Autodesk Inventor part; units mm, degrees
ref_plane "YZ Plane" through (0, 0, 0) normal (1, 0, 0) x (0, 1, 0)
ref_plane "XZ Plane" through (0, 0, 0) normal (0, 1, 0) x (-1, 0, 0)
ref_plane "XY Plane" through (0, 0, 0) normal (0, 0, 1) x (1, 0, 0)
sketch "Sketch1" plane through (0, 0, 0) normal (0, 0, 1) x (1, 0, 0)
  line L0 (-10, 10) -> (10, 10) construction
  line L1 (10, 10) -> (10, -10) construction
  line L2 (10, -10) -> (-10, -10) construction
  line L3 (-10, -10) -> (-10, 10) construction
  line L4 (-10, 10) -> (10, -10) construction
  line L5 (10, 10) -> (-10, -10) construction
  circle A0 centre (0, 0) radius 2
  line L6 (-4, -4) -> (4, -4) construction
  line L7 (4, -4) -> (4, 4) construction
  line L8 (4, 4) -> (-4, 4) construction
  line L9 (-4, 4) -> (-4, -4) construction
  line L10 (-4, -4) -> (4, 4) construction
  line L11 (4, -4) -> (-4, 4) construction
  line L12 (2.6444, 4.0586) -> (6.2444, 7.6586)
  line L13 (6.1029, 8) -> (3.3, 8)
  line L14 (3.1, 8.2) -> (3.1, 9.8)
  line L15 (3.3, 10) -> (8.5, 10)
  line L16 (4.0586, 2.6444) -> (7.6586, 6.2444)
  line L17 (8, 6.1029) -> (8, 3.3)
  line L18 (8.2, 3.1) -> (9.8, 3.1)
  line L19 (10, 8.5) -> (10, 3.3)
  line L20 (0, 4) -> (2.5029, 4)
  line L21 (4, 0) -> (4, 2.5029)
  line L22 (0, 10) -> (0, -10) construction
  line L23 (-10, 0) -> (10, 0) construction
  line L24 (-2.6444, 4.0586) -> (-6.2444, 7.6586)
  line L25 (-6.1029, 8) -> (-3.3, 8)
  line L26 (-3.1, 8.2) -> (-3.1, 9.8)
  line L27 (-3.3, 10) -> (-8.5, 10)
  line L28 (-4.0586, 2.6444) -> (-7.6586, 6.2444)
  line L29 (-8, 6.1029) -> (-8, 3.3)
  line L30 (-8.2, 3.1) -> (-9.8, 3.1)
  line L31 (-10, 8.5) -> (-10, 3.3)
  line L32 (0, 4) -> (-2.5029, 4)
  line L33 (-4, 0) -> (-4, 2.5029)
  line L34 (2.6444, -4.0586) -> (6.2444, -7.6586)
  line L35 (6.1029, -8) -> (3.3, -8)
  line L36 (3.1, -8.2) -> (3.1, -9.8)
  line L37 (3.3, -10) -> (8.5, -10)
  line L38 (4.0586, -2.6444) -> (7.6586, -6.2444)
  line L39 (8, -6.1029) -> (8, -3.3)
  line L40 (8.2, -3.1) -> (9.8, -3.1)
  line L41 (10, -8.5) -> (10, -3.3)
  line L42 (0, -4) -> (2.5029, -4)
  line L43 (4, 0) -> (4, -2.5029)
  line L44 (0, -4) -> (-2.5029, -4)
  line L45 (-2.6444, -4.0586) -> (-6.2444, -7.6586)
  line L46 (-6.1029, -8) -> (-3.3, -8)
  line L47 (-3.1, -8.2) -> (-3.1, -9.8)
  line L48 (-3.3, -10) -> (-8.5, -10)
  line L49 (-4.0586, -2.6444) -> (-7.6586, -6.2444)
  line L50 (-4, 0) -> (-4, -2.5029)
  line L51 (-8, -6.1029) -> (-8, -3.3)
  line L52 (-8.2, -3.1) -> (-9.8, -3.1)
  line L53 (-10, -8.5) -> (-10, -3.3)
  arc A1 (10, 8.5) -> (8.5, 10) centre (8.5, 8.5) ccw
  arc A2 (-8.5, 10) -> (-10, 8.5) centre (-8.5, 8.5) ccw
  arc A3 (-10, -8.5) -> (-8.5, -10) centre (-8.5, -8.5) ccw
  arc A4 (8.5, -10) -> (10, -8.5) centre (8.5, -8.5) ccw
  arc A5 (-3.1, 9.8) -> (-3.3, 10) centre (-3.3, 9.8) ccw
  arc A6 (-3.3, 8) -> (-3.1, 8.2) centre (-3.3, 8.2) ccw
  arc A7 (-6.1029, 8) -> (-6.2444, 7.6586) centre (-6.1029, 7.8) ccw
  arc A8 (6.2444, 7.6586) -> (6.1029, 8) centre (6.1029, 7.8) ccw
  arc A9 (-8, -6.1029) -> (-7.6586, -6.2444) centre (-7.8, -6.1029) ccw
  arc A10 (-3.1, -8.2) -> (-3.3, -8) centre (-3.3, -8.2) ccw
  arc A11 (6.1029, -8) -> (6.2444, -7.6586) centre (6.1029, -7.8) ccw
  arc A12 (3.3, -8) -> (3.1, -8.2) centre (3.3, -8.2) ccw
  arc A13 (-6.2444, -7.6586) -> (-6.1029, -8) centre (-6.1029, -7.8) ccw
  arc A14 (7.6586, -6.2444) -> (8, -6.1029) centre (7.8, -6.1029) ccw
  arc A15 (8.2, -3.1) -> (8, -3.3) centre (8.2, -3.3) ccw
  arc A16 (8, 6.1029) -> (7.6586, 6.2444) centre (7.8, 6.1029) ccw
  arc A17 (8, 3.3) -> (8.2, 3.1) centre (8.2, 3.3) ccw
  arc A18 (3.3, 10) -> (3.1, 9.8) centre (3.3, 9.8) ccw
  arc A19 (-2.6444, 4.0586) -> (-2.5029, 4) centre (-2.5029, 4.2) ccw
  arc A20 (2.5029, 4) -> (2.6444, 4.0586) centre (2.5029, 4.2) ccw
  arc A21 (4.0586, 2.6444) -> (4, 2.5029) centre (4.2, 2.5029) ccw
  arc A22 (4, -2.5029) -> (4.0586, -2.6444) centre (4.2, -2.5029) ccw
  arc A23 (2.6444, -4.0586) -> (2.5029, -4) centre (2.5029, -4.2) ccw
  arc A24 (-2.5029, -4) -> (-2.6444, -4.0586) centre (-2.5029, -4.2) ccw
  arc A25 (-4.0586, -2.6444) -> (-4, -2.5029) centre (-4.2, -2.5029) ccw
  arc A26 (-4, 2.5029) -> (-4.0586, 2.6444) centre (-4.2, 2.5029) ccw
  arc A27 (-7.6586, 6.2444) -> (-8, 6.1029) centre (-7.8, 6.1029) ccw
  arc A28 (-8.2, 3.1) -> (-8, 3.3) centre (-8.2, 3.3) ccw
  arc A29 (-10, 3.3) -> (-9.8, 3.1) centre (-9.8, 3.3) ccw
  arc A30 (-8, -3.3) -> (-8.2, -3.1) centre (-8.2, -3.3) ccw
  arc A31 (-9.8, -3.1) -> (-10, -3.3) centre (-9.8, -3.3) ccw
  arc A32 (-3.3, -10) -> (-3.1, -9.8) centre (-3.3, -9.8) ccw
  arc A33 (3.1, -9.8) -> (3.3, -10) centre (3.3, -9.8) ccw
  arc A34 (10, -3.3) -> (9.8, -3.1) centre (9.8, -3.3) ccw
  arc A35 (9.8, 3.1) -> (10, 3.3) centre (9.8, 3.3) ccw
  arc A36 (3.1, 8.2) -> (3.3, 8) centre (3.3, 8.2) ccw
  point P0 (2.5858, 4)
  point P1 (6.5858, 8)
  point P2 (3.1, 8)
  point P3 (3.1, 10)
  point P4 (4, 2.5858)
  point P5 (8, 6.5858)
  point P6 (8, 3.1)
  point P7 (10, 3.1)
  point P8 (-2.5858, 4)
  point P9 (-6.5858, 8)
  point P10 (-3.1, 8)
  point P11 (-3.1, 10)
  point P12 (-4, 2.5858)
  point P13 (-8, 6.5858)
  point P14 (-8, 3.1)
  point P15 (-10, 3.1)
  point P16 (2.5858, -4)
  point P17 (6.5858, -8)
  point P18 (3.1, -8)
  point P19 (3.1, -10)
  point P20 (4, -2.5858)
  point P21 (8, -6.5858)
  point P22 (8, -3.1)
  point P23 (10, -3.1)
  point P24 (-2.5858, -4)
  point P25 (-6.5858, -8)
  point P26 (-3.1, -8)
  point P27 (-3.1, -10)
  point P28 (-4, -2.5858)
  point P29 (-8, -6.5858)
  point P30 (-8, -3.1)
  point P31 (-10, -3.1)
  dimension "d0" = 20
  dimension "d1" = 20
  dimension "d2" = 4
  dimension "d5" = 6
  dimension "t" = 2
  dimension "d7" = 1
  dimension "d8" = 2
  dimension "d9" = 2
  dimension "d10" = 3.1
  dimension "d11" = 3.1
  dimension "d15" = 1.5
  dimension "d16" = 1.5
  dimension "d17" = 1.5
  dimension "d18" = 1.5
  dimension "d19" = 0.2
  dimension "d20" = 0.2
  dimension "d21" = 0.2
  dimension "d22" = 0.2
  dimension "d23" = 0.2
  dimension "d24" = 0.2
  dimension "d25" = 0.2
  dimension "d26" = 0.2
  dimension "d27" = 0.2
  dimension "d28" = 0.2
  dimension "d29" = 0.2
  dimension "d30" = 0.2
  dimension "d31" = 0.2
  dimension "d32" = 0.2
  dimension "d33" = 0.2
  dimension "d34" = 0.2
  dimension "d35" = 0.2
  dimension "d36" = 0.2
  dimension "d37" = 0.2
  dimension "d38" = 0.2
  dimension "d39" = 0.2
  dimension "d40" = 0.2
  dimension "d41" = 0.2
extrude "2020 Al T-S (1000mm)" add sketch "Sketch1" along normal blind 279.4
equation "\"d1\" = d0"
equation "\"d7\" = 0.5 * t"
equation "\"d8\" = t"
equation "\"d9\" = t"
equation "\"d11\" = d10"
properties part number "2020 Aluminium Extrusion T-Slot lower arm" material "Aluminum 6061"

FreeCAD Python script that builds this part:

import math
import FreeCAD as App
import Part
import Sketcher
from FreeCAD import Vector

doc = App.newDocument("Part")
body = doc.addObject("PartDesign::Body", "Body")

# Sketch on XY plane
sketch1 = doc.addObject("Sketcher::SketchObject", "Sketch")
body.addObject(sketch1)
sketch1.AttachmentSupport = (doc.XY_Plane, [""])
sketch1.MapMode = "FlatFace"
sketch1.addGeometry([
    Part.LineSegment(Vector(6.2444, 7.6586, 0), Vector(2.6444, 4.0586, 0)),  # 0
    Part.ArcOfCircle(Part.Circle(Vector(2.5029, 4.2, 0), Vector(0, 0, 1), 0.2), math.radians(-90), math.radians(-44.979747)),  # 1
    Part.LineSegment(Vector(2.5029, 4, 0), Vector(-2.5029, 4, 0)),  # 2
    Part.ArcOfCircle(Part.Circle(Vector(-2.5029, 4.2, 0), Vector(0, 0, 1), 0.200041), math.radians(-135.020253), math.radians(-90)),  # 3
    Part.LineSegment(Vector(-2.6444, 4.0586, 0), Vector(-6.2444, 7.6586, 0)),  # 4
    Part.ArcOfCircle(Part.Circle(Vector(-6.1029, 7.8, 0), Vector(0, 0, 1), 0.2), math.radians(90), math.radians(224.979747)),  # 5
    Part.LineSegment(Vector(-6.1029, 8, 0), Vector(-3.3, 8, 0)),  # 6
    Part.ArcOfCircle(Part.Circle(Vector(-3.3, 8.2, 0), Vector(0, 0, 1), 0.2), math.radians(-90), math.radians(0)),  # 7
    Part.LineSegment(Vector(-3.1, 8.2, 0), Vector(-3.1, 9.8, 0)),  # 8
    Part.ArcOfCircle(Part.Circle(Vector(-3.3, 9.8, 0), Vector(0, 0, 1), 0.2), math.radians(0), math.radians(90)),  # 9
    Part.LineSegment(Vector(-3.3, 10, 0), Vector(-8.5, 10, 0)),  # 10
    Part.ArcOfCircle(Part.Circle(Vector(-8.5, 8.5, 0), Vector(0, 0, 1), 1.5), math.radians(90), math.radians(180)),  # 11
    Part.LineSegment(Vector(-10, 8.5, 0), Vector(-10, 3.3, 0)),  # 12
    Part.ArcOfCircle(Part.Circle(Vector(-9.8, 3.3, 0), Vector(0, 0, 1), 0.2), math.radians(180), math.radians(270)),  # 13
    Part.LineSegment(Vector(-9.8, 3.1, 0), Vector(-8.2, 3.1, 0)),  # 14
    Part.ArcOfCircle(Part.Circle(Vector(-8.2, 3.3, 0), Vector(0, 0, 1), 0.2), math.radians(-90), math.radians(0)),  # 15
    Part.LineSegment(Vector(-8, 3.3, 0), Vector(-8, 6.1029, 0)),  # 16
    Part.ArcOfCircle(Part.Circle(Vector(-7.8, 6.1029, 0), Vector(0, 0, 1), 0.200041), math.radians(45.020253), math.radians(180)),  # 17
    Part.LineSegment(Vector(-7.6586, 6.2444, 0), Vector(-4.0586, 2.6444, 0)),  # 18
    Part.ArcOfCircle(Part.Circle(Vector(-4.2, 2.5029, 0), Vector(0, 0, 1), 0.2), math.radians(0), math.radians(45.020253)),  # 19
    Part.LineSegment(Vector(-4, 2.5029, 0), Vector(-4, -2.5029, 0)),  # 20
    Part.ArcOfCircle(Part.Circle(Vector(-4.2, -2.5029, 0), Vector(0, 0, 1), 0.200041), math.radians(-45.020253), math.radians(0)),  # 21
    Part.LineSegment(Vector(-4.0586, -2.6444, 0), Vector(-7.6586, -6.2444, 0)),  # 22
    Part.ArcOfCircle(Part.Circle(Vector(-7.8, -6.1029, 0), Vector(0, 0, 1), 0.2), math.radians(180), math.radians(314.979747)),  # 23
    Part.LineSegment(Vector(-8, -6.1029, 0), Vector(-8, -3.3, 0)),  # 24
    Part.ArcOfCircle(Part.Circle(Vector(-8.2, -3.3, 0), Vector(0, 0, 1), 0.2), math.radians(0), math.radians(90)),  # 25
    Part.LineSegment(Vector(-8.2, -3.1, 0), Vector(-9.8, -3.1, 0)),  # 26
    Part.ArcOfCircle(Part.Circle(Vector(-9.8, -3.3, 0), Vector(0, 0, 1), 0.2), math.radians(90), math.radians(180)),  # 27
    Part.LineSegment(Vector(-10, -3.3, 0), Vector(-10, -8.5, 0)),  # 28
    Part.ArcOfCircle(Part.Circle(Vector(-8.5, -8.5, 0), Vector(0, 0, 1), 1.5), math.radians(180), math.radians(270)),  # 29
    Part.LineSegment(Vector(-8.5, -10, 0), Vector(-3.3, -10, 0)),  # 30
    Part.ArcOfCircle(Part.Circle(Vector(-3.3, -9.8, 0), Vector(0, 0, 1), 0.2), math.radians(-90), math.radians(0)),  # 31
    Part.LineSegment(Vector(-3.1, -9.8, 0), Vector(-3.1, -8.2, 0)),  # 32
    Part.ArcOfCircle(Part.Circle(Vector(-3.3, -8.2, 0), Vector(0, 0, 1), 0.2), math.radians(0), math.radians(90)),  # 33
    Part.LineSegment(Vector(-3.3, -8, 0), Vector(-6.1029, -8, 0)),  # 34
    Part.ArcOfCircle(Part.Circle(Vector(-6.1029, -7.8, 0), Vector(0, 0, 1), 0.200041), math.radians(135.020253), math.radians(270)),  # 35
    Part.LineSegment(Vector(-6.2444, -7.6586, 0), Vector(-2.6444, -4.0586, 0)),  # 36
    Part.ArcOfCircle(Part.Circle(Vector(-2.5029, -4.2, 0), Vector(0, 0, 1), 0.2), math.radians(90), math.radians(135.020253)),  # 37
    Part.LineSegment(Vector(-2.5029, -4, 0), Vector(2.5029, -4, 0)),  # 38
    Part.ArcOfCircle(Part.Circle(Vector(2.5029, -4.2, 0), Vector(0, 0, 1), 0.200041), math.radians(44.979747), math.radians(90)),  # 39
    Part.LineSegment(Vector(2.6444, -4.0586, 0), Vector(6.2444, -7.6586, 0)),  # 40
    Part.ArcOfCircle(Part.Circle(Vector(6.1029, -7.8, 0), Vector(0, 0, 1), 0.2), math.radians(-90), math.radians(44.979747)),  # 41
    Part.LineSegment(Vector(6.1029, -8, 0), Vector(3.3, -8, 0)),  # 42
    Part.ArcOfCircle(Part.Circle(Vector(3.3, -8.2, 0), Vector(0, 0, 1), 0.2), math.radians(90), math.radians(180)),  # 43
    Part.LineSegment(Vector(3.1, -8.2, 0), Vector(3.1, -9.8, 0)),  # 44
    Part.ArcOfCircle(Part.Circle(Vector(3.3, -9.8, 0), Vector(0, 0, 1), 0.2), math.radians(180), math.radians(270)),  # 45
    Part.LineSegment(Vector(3.3, -10, 0), Vector(8.5, -10, 0)),  # 46
    Part.ArcOfCircle(Part.Circle(Vector(8.5, -8.5, 0), Vector(0, 0, 1), 1.5), math.radians(-90), math.radians(0)),  # 47
    Part.LineSegment(Vector(10, -8.5, 0), Vector(10, -3.3, 0)),  # 48
    Part.ArcOfCircle(Part.Circle(Vector(9.8, -3.3, 0), Vector(0, 0, 1), 0.2), math.radians(0), math.radians(90)),  # 49
    Part.LineSegment(Vector(9.8, -3.1, 0), Vector(8.2, -3.1, 0)),  # 50
    Part.ArcOfCircle(Part.Circle(Vector(8.2, -3.3, 0), Vector(0, 0, 1), 0.2), math.radians(90), math.radians(180)),  # 51
    Part.LineSegment(Vector(8, -3.3, 0), Vector(8, -6.1029, 0)),  # 52
    Part.ArcOfCircle(Part.Circle(Vector(7.8, -6.1029, 0), Vector(0, 0, 1), 0.200041), math.radians(-134.979747), math.radians(0)),  # 53
    Part.LineSegment(Vector(7.6586, -6.2444, 0), Vector(4.0586, -2.6444, 0)),  # 54
    Part.ArcOfCircle(Part.Circle(Vector(4.2, -2.5029, 0), Vector(0, 0, 1), 0.2), math.radians(180), math.radians(225.020253)),  # 55
    Part.LineSegment(Vector(4, -2.5029, 0), Vector(4, 2.5029, 0)),  # 56
    Part.ArcOfCircle(Part.Circle(Vector(4.2, 2.5029, 0), Vector(0, 0, 1), 0.200041), math.radians(134.979747), math.radians(180)),  # 57
    Part.LineSegment(Vector(4.0586, 2.6444, 0), Vector(7.6586, 6.2444, 0)),  # 58
    Part.ArcOfCircle(Part.Circle(Vector(7.8, 6.1029, 0), Vector(0, 0, 1), 0.2), math.radians(0), math.radians(134.979747)),  # 59
    Part.LineSegment(Vector(8, 6.1029, 0), Vector(8, 3.3, 0)),  # 60
    Part.ArcOfCircle(Part.Circle(Vector(8.2, 3.3, 0), Vector(0, 0, 1), 0.2), math.radians(180), math.radians(270)),  # 61
    Part.LineSegment(Vector(8.2, 3.1, 0), Vector(9.8, 3.1, 0)),  # 62
    Part.ArcOfCircle(Part.Circle(Vector(9.8, 3.3, 0), Vector(0, 0, 1), 0.2), math.radians(-90), math.radians(0)),  # 63
    Part.LineSegment(Vector(10, 3.3, 0), Vector(10, 8.5, 0)),  # 64
    Part.ArcOfCircle(Part.Circle(Vector(8.5, 8.5, 0), Vector(0, 0, 1), 1.5), math.radians(0), math.radians(90)),  # 65
    Part.LineSegment(Vector(8.5, 10, 0), Vector(3.3, 10, 0)),  # 66
    Part.ArcOfCircle(Part.Circle(Vector(3.3, 9.8, 0), Vector(0, 0, 1), 0.2), math.radians(90), math.radians(180)),  # 67
    Part.LineSegment(Vector(3.1, 9.8, 0), Vector(3.1, 8.2, 0)),  # 68
    Part.ArcOfCircle(Part.Circle(Vector(3.3, 8.2, 0), Vector(0, 0, 1), 0.2), math.radians(180), math.radians(270)),  # 69
    Part.LineSegment(Vector(3.3, 8, 0), Vector(6.1029, 8, 0)),  # 70
    Part.ArcOfCircle(Part.Circle(Vector(6.1029, 7.8, 0), Vector(0, 0, 1), 0.200041), math.radians(-44.979747), math.radians(90)),  # 71
    Part.Circle(Vector(0, 0, 0), Vector(0, 0, 1), 2),  # 72
], False)
sketch1.addConstraint([
    Sketcher.Constraint("Tangent", 0, 2, 1, 2),
    Sketcher.Constraint("Tangent", 1, 1, 2, 1),
    Sketcher.Constraint("Tangent", 2, 2, 3, 2),
    Sketcher.Constraint("Tangent", 3, 1, 4, 1),
    Sketcher.Constraint("Tangent", 4, 2, 5, 2),
    Sketcher.Constraint("Tangent", 5, 1, 6, 1),
    Sketcher.Constraint("Tangent", 6, 2, 7, 1),
    Sketcher.Constraint("Tangent", 7, 2, 8, 1),
    Sketcher.Constraint("Tangent", 8, 2, 9, 1),
    Sketcher.Constraint("Tangent", 9, 2, 10, 1),
    Sketcher.Constraint("Tangent", 10, 2, 11, 1),
    Sketcher.Constraint("Tangent", 11, 2, 12, 1),
    Sketcher.Constraint("Tangent", 12, 2, 13, 1),
    Sketcher.Constraint("Tangent", 13, 2, 14, 1),
    Sketcher.Constraint("Tangent", 14, 2, 15, 1),
    Sketcher.Constraint("Tangent", 15, 2, 16, 1),
    Sketcher.Constraint("Tangent", 16, 2, 17, 2),
    Sketcher.Constraint("Tangent", 17, 1, 18, 1),
    Sketcher.Constraint("Tangent", 18, 2, 19, 2),
    Sketcher.Constraint("Tangent", 19, 1, 20, 1),
    Sketcher.Constraint("Tangent", 20, 2, 21, 2),
    Sketcher.Constraint("Tangent", 21, 1, 22, 1),
    Sketcher.Constraint("Tangent", 22, 2, 23, 2),
    Sketcher.Constraint("Tangent", 23, 1, 24, 1),
    Sketcher.Constraint("Tangent", 24, 2, 25, 1),
    Sketcher.Constraint("Tangent", 25, 2, 26, 1),
    Sketcher.Constraint("Tangent", 26, 2, 27, 1),
    Sketcher.Constraint("Tangent", 27, 2, 28, 1),
    Sketcher.Constraint("Tangent", 28, 2, 29, 1),
    Sketcher.Constraint("Tangent", 29, 2, 30, 1),
    Sketcher.Constraint("Tangent", 30, 2, 31, 1),
    Sketcher.Constraint("Tangent", 31, 2, 32, 1),
    Sketcher.Constraint("Tangent", 32, 2, 33, 1),
    Sketcher.Constraint("Tangent", 33, 2, 34, 1),
    Sketcher.Constraint("Tangent", 34, 2, 35, 2),
    Sketcher.Constraint("Tangent", 35, 1, 36, 1),
    Sketcher.Constraint("Tangent", 36, 2, 37, 2),
    Sketcher.Constraint("Tangent", 37, 1, 38, 1),
    Sketcher.Constraint("Tangent", 38, 2, 39, 2),
    Sketcher.Constraint("Tangent", 39, 1, 40, 1),
    Sketcher.Constraint("Tangent", 40, 2, 41, 2),
    Sketcher.Constraint("Tangent", 41, 1, 42, 1),
    Sketcher.Constraint("Tangent", 42, 2, 43, 1),
    Sketcher.Constraint("Tangent", 43, 2, 44, 1),
    Sketcher.Constraint("Tangent", 44, 2, 45, 1),
    Sketcher.Constraint("Tangent", 45, 2, 46, 1),
    Sketcher.Constraint("Tangent", 46, 2, 47, 1),
    Sketcher.Constraint("Tangent", 47, 2, 48, 1),
    Sketcher.Constraint("Tangent", 48, 2, 49, 1),
    Sketcher.Constraint("Tangent", 49, 2, 50, 1),
    Sketcher.Constraint("Tangent", 50, 2, 51, 1),
    Sketcher.Constraint("Tangent", 51, 2, 52, 1),
    Sketcher.Constraint("Tangent", 52, 2, 53, 2),
    Sketcher.Constraint("Tangent", 53, 1, 54, 1),
    Sketcher.Constraint("Tangent", 54, 2, 55, 2),
    Sketcher.Constraint("Tangent", 55, 1, 56, 1),
    Sketcher.Constraint("Tangent", 56, 2, 57, 2),
    Sketcher.Constraint("Tangent", 57, 1, 58, 1),
    Sketcher.Constraint("Tangent", 58, 2, 59, 2),
    Sketcher.Constraint("Tangent", 59, 1, 60, 1),
    Sketcher.Constraint("Tangent", 60, 2, 61, 1),
    Sketcher.Constraint("Tangent", 61, 2, 62, 1),
    Sketcher.Constraint("Tangent", 62, 2, 63, 1),
    Sketcher.Constraint("Tangent", 63, 2, 64, 1),
    Sketcher.Constraint("Tangent", 64, 2, 65, 1),
    Sketcher.Constraint("Tangent", 65, 2, 66, 1),
    Sketcher.Constraint("Tangent", 66, 2, 67, 1),
    Sketcher.Constraint("Tangent", 67, 2, 68, 1),
    Sketcher.Constraint("Tangent", 68, 2, 69, 1),
    Sketcher.Constraint("Tangent", 69, 2, 70, 1),
    Sketcher.Constraint("Tangent", 70, 2, 71, 2),
    Sketcher.Constraint("Tangent", 71, 1, 0, 1),
    Sketcher.Constraint("Horizontal", 2),
    Sketcher.Constraint("Horizontal", 6),
    Sketcher.Constraint("Vertical", 8),
    Sketcher.Constraint("Horizontal", 10),
    Sketcher.Constraint("Vertical", 12),
    Sketcher.Constraint("Horizontal", 14),
    Sketcher.Constraint("Vertical", 16),
    Sketcher.Constraint("Vertical", 20),
    Sketcher.Constraint("Vertical", 24),
    Sketcher.Constraint("Horizontal", 26),
    Sketcher.Constraint("Vertical", 28),
    Sketcher.Constraint("Horizontal", 30),
    Sketcher.Constraint("Vertical", 32),
    Sketcher.Constraint("Horizontal", 34),
    Sketcher.Constraint("Horizontal", 38),
    Sketcher.Constraint("Horizontal", 42),
    Sketcher.Constraint("Vertical", 44),
    Sketcher.Constraint("Horizontal", 46),
    Sketcher.Constraint("Vertical", 48),
    Sketcher.Constraint("Horizontal", 50),
    Sketcher.Constraint("Vertical", 52),
    Sketcher.Constraint("Vertical", 56),
    Sketcher.Constraint("Vertical", 60),
    Sketcher.Constraint("Horizontal", 62),
    Sketcher.Constraint("Vertical", 64),
    Sketcher.Constraint("Horizontal", 66),
    Sketcher.Constraint("Vertical", 68),
    Sketcher.Constraint("Horizontal", 70),
    Sketcher.Constraint("Coincident", 72, 3, -1, 1),
    Sketcher.Constraint("Equal", 1, 3),
    Sketcher.Constraint("Equal", 3, 5),
    Sketcher.Constraint("Equal", 5, 7),
    Sketcher.Constraint("Equal", 7, 9),
    Sketcher.Constraint("Equal", 9, 13),
    Sketcher.Constraint("Equal", 13, 15),
    Sketcher.Constraint("Equal", 15, 17),
    Sketcher.Constraint("Equal", 17, 19),
    Sketcher.Constraint("Equal", 19, 21),
    Sketcher.Constraint("Equal", 21, 23),
    Sketcher.Constraint("Equal", 23, 25),
    Sketcher.Constraint("Equal", 25, 27),
    Sketcher.Constraint("Equal", 11, 29),
    Sketcher.Constraint("Equal", 27, 31),
    Sketcher.Constraint("Equal", 31, 33),
    Sketcher.Constraint("Equal", 33, 35),
    Sketcher.Constraint("Equal", 35, 37),
    Sketcher.Constraint("Equal", 37, 39),
    Sketcher.Constraint("Equal", 39, 41),
    Sketcher.Constraint("Equal", 41, 43),
    Sketcher.Constraint("Equal", 43, 45),
    Sketcher.Constraint("Equal", 29, 47),
    Sketcher.Constraint("Equal", 45, 49),
    Sketcher.Constraint("Equal", 49, 51),
    Sketcher.Constraint("Equal", 51, 53),
    Sketcher.Constraint("Equal", 53, 55),
    Sketcher.Constraint("Equal", 55, 57),
    Sketcher.Constraint("Equal", 57, 59),
    Sketcher.Constraint("Equal", 59, 61),
    Sketcher.Constraint("Equal", 61, 63),
    Sketcher.Constraint("Equal", 47, 65),
    Sketcher.Constraint("Equal", 63, 67),
    Sketcher.Constraint("Equal", 67, 69),
    Sketcher.Constraint("Equal", 69, 71),
    Sketcher.Constraint("Symmetric", 1, 3, 37, 3, -1, 1),
    Sketcher.Constraint("Symmetric", 5, 3, 41, 3, -1, 1),
    Sketcher.Constraint("Symmetric", 9, 3, 45, 3, -1, 1),
    Sketcher.Constraint("Symmetric", 13, 3, 49, 3, -1, 1),
    Sketcher.Constraint("Symmetric", 17, 3, 53, 3, -1, 1),
    Sketcher.Constraint("Symmetric", 19, 3, 55, 3, -1, 1),
    Sketcher.Constraint("Symmetric", 23, 3, 59, 3, -1, 1),
    Sketcher.Constraint("Symmetric", 27, 3, 63, 3, -1, 1),
    Sketcher.Constraint("Symmetric", 31, 3, 67, 3, -1, 1),
    Sketcher.Constraint("Symmetric", 35, 3, 71, 3, -1, 1),
    Sketcher.Constraint("Symmetric", 35, 3, 41, 3, -2),
    Sketcher.Constraint("Symmetric", 31, 3, 45, 3, -2),
    Sketcher.Constraint("Symmetric", 27, 3, 49, 3, -2),
    Sketcher.Constraint("Symmetric", 23, 3, 53, 3, -2),
    Sketcher.Constraint("Perpendicular", 0, 4),
    Sketcher.Constraint("Parallel", 4, 18),
    Sketcher.Constraint("Perpendicular", 18, 22),
    Sketcher.Constraint("Perpendicular", 36, 40),
    Sketcher.Constraint("Perpendicular", 54, 58),
    Sketcher.Constraint("Horizontal", 21, 3, 55, 3),
    Sketcher.Constraint("Equal", 62, 8),
    Sketcher.Constraint("Equal", 66, 12),
    Sketcher.Constraint("Equal", 70, 16),
    Sketcher.Constraint("Equal", 38, 20),
    Sketcher.Constraint("Equal", 4, 18),
    Sketcher.Constraint("Diameter", 72, 4.0),
    Sketcher.Constraint("Radius", 1, 0.2),
    Sketcher.Constraint("Radius", 11, 1.5),
    Sketcher.Constraint("DistanceY", -1, 1, 1, 1, 4.0),
    Sketcher.Constraint("DistanceX", 7, 2, -1, 1, 3.1),
    Sketcher.Constraint("DistanceX", 10, 2, 10, 1, 5.2),
    Sketcher.Constraint("DistanceX", 14, 1, 14, 2, 1.6),
    Sketcher.Constraint("DistanceX", 6, 1, 6, 2, 2.803),
])
pad1 = doc.addObject("PartDesign::Pad", "Pad")
body.addObject(pad1)
pad1.Profile = sketch1
pad1.Length = 279.4

doc.recompute()
